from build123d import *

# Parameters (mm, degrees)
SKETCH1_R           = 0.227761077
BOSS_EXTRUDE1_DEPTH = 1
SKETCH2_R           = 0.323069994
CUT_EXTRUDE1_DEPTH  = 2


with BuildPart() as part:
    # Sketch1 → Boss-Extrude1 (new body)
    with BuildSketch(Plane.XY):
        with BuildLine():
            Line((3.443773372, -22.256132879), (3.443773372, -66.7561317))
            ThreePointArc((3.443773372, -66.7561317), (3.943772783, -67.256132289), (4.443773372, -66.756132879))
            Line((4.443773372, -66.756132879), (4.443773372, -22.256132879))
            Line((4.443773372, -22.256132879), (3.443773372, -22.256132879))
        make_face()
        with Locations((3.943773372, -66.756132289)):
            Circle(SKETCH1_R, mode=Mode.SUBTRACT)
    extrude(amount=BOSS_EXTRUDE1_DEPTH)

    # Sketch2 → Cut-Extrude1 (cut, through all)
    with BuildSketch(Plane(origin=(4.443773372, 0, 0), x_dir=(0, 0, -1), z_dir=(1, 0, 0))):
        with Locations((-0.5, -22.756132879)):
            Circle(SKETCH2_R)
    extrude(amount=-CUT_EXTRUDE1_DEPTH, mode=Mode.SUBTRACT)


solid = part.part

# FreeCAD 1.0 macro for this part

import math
import FreeCAD as App
import Part
import Sketcher
from FreeCAD import Vector

doc = App.newDocument("Part")
body = doc.addObject("PartDesign::Body", "Body")

sketch1 = body.newObject("Sketcher::SketchObject", "Sketch")
sketch1.AttachmentSupport = (doc.getObject("XY_Plane"), [""])
sketch1.MapMode = "FlatFace"
sketch1.addGeometry(Part.LineSegment(Vector(3.44, -22.26, 0), Vector(3.44, -66.76, 0)), False)
sketch1.addGeometry(Part.ArcOfCircle(Part.Circle(Vector(3.94, -66.76, 0), Vector(0, 0, 1), 0.5), math.radians(180), math.radians(360)), False)
sketch1.addGeometry(Part.LineSegment(Vector(4.44, -66.76, 0), Vector(4.44, -22.26, 0)), False)
sketch1.addGeometry(Part.LineSegment(Vector(4.44, -22.26, 0), Vector(3.44, -22.26, 0)), False)
sketch1.addGeometry(Part.Circle(Vector(3.94, -66.76, 0), Vector(0, 0, 1), 0.23), False)
sketch1.addConstraint(Sketcher.Constraint("Tangent", 0, 2, 1, 1))
sketch1.addConstraint(Sketcher.Constraint("Tangent", 1, 2, 2, 1))
sketch1.addConstraint(Sketcher.Constraint("Coincident", 2, 2, 3, 1))
sketch1.addConstraint(Sketcher.Constraint("Coincident", 3, 2, 0, 1))
sketch1.addConstraint(Sketcher.Constraint("Vertical", 0))
sketch1.addConstraint(Sketcher.Constraint("Vertical", 2))
sketch1.addConstraint(Sketcher.Constraint("Horizontal", 3))
sketch1.addConstraint(Sketcher.Constraint("Coincident", 4, 3, 1, 3))
sketch1.addConstraint(Sketcher.Constraint("Radius", 1, 0.5))
sketch1.addConstraint(Sketcher.Constraint("DistanceY", 0, 2, 0, 1, 44.499999))
sketch1.addConstraint(Sketcher.Constraint("Diameter", 4, 0.455522))
sketch1.addConstraint(Sketcher.Constraint("DistanceY", 0, 2, -1, 1, 66.756132))
sketch1.addConstraint(Sketcher.Constraint("DistanceX", -1, 1, 1, 3, 3.943773))
pad1 = body.newObject("PartDesign::Pad", "Pad")
pad1.Profile = sketch1
pad1.Length = 1

sketch2 = body.newObject("Sketcher::SketchObject", "Sketch001")
sketch2.AttachmentSupport = (doc.getObject("YZ_Plane"), [""])
sketch2.MapMode = "FlatFace"
sketch2.AttachmentOffset = App.Placement(Vector(0, 0, 4.443773), App.Rotation())
sketch2.addGeometry(Part.Circle(Vector(-22.76, 0.5, 0), Vector(0, 0, 1), 0.32), False)
sketch2.addConstraint(Sketcher.Constraint("DistanceY", -1, 1, 0, 3, 0.5))
sketch2.addConstraint(Sketcher.Constraint("Diameter", 0, 0.64614))
sketch2.addConstraint(Sketcher.Constraint("DistanceX", 0, 3, -1, 1, 22.756133))
pocket1 = body.newObject("PartDesign::Pocket", "Pocket")
pocket1.Profile = sketch2
pocket1.Type = "ThroughAll"

doc.recompute()
